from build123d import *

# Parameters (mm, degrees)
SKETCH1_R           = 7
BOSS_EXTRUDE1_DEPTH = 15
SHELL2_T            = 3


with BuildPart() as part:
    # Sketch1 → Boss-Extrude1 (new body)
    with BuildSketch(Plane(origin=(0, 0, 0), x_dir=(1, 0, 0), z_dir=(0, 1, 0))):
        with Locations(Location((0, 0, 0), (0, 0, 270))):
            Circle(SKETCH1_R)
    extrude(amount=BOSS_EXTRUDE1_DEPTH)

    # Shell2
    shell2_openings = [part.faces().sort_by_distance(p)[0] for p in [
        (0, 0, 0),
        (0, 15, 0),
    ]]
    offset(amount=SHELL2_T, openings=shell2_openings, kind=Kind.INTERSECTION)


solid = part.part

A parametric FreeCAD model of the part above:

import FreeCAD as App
import Part
import Sketcher


def faces_at(feature, points):
    """Names of the faces that lie closest to the given points."""
    faces = feature.Shape.Faces
    near = lambda p: min(range(len(faces)), key=lambda i: faces[i].distToShape(Part.Vertex(*p))[0])
    return sorted({f"Face{near(p) + 1}" for p in points})

doc = App.newDocument("Part")
body = doc.addObject("PartDesign::Body", "Body")

# Sketch on XZ plane
sketch1 = body.newObject("Sketcher::SketchObject", "Sketch")
sketch1.AttachmentSupport = (doc.getObject("XZ_Plane"), [""])
sketch1.MapMode = "FlatFace"
sketch1.addGeometry(Part.Circle(App.Vector(0, 0, 0), App.Vector(0, 0, 1), 7), False)
sketch1.addConstraint([
    Sketcher.Constraint("Coincident", 0, 3, -1, 1),
    Sketcher.Constraint("Diameter", 0, 14.0),
])
pad1 = body.newObject("PartDesign::Pad", "Pad")
pad1.Profile = sketch1
pad1.Length = 15
pad1.Reversed = True
doc.recompute()

thickness = body.newObject("PartDesign::Thickness", "Thickness")
thickness.Base = (pad1, faces_at(pad1, [(0, 0, 0), (0, 15, 0)]))
thickness.Value = 3
thickness.Reversed = False
thickness.Join = "Intersection"

doc.recompute()
